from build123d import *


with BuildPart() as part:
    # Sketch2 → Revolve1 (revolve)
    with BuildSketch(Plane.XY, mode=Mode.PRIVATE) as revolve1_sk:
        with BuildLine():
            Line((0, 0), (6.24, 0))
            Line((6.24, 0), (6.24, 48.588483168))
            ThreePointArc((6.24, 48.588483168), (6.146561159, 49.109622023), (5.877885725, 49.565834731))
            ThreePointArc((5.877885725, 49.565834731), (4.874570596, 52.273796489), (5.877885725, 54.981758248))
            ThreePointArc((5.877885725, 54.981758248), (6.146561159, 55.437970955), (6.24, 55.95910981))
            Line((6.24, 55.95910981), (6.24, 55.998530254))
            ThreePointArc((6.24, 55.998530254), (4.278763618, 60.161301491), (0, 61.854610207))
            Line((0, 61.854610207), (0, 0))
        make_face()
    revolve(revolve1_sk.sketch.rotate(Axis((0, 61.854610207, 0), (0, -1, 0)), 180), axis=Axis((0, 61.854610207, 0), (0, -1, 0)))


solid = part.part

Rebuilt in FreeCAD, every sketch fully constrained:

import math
import FreeCAD as App
import Part
import Sketcher

V = App.Vector

doc = App.newDocument("Part")
params = doc.addObject("Spreadsheet::Sheet", "Params")
for row, (alias, value) in enumerate([
    ("sketch1_radius", "1.5 mm"),
    ("sketch1_width", "6.24 mm"),
    ("revolution_angle", "360 deg"),
], start=1):
    params.set(f"A{row}", alias)
    params.set(f"B{row}", "=" + value)
    params.setAlias(f"B{row}", alias)

body = doc.addObject("PartDesign::Body", "Body")

sketch1 = body.newObject("Sketcher::SketchObject", "Sketch")
sketch1.AttachmentSupport = (doc.getObject("XY_Plane"), [""])
sketch1.MapMode = "FlatFace"
sketch1.addGeometry([
    Part.LineSegment(V(0, 0, 0), V(6.24, 0, 0)),
    Part.LineSegment(V(6.24, 0, 0), V(6.24, 48.588, 0)),
    Part.ArcOfCircle(Part.Circle(V(4.74, 48.588, 0), V(0, 0, 1), 1.5), math.radians(0), math.radians(41)),
    Part.ArcOfCircle(Part.Circle(V(9.031, 52.274, 0), V(0, 0, 1), 4.156), math.radians(139), math.radians(221)),
    Part.ArcOfCircle(Part.Circle(V(4.74, 55.959, 0), V(0, 0, 1), 1.5), math.radians(-41), math.radians(0)),
    Part.LineSegment(V(6.24, 55.959, 0), V(6.24, 55.999, 0)),
    Part.ArcOfCircle(Part.Circle(V(0, 55.602, 0), V(0, 0, 1), 6.253), math.radians(4), math.radians(90)),
    Part.LineSegment(V(0, 61.855, 0), V(0, 0, 0)),
], False)
sketch1.addConstraint([
    Sketcher.Constraint("Coincident", 0, 2, 1, 1),
    Sketcher.Constraint("Tangent", 1, 2, 2, 1),
    Sketcher.Constraint("Tangent", 2, 2, 3, 2),
    Sketcher.Constraint("Tangent", 3, 1, 4, 1),
    Sketcher.Constraint("Tangent", 4, 2, 5, 1),
    Sketcher.Constraint("Coincident", 5, 2, 6, 1),
    Sketcher.Constraint("Coincident", 6, 2, 7, 1),
    Sketcher.Constraint("Coincident", 7, 2, 0, 1),
    Sketcher.Constraint("Horizontal", 0),
    Sketcher.Constraint("Vertical", 1),
    Sketcher.Constraint("Vertical", 5),
    Sketcher.Constraint("Vertical", 7),
    Sketcher.Constraint("Coincident", 7, 2, -1, 1),
    Sketcher.Constraint("Equal", 2, 4),
    Sketcher.Constraint("PointOnObject", 6, 3, -2),
    Sketcher.Constraint("Vertical", 2, 3, 4, 3),
    Sketcher.Constraint("Radius", 2, 1.5),
    Sketcher.Constraint("DistanceX", 0, 1, 0, 2, 6.24),
    Sketcher.Constraint("Radius", 3, 4.156071),
    Sketcher.Constraint("Radius", 6, 6.252585),
    Sketcher.Constraint("DistanceY", 5, 1, 5, 2, 0.03942),
    Sketcher.Constraint("DistanceY", 7, 2, 7, 1, 61.85461),
    Sketcher.Constraint("DistanceY", 1, 1, 1, 2, 48.588483),
])
sketch1.setExpression("Constraints[16]", "Params.sketch1_radius")
sketch1.setExpression("Constraints[17]", "Params.sketch1_width")
revolution = body.newObject("PartDesign::Revolution", "Revolution")
revolution.Profile = sketch1
revolution.ReferenceAxis = (sketch1, ["V_Axis"])
revolution.setExpression("Angle", "Params.revolution_angle")

doc.recompute()
